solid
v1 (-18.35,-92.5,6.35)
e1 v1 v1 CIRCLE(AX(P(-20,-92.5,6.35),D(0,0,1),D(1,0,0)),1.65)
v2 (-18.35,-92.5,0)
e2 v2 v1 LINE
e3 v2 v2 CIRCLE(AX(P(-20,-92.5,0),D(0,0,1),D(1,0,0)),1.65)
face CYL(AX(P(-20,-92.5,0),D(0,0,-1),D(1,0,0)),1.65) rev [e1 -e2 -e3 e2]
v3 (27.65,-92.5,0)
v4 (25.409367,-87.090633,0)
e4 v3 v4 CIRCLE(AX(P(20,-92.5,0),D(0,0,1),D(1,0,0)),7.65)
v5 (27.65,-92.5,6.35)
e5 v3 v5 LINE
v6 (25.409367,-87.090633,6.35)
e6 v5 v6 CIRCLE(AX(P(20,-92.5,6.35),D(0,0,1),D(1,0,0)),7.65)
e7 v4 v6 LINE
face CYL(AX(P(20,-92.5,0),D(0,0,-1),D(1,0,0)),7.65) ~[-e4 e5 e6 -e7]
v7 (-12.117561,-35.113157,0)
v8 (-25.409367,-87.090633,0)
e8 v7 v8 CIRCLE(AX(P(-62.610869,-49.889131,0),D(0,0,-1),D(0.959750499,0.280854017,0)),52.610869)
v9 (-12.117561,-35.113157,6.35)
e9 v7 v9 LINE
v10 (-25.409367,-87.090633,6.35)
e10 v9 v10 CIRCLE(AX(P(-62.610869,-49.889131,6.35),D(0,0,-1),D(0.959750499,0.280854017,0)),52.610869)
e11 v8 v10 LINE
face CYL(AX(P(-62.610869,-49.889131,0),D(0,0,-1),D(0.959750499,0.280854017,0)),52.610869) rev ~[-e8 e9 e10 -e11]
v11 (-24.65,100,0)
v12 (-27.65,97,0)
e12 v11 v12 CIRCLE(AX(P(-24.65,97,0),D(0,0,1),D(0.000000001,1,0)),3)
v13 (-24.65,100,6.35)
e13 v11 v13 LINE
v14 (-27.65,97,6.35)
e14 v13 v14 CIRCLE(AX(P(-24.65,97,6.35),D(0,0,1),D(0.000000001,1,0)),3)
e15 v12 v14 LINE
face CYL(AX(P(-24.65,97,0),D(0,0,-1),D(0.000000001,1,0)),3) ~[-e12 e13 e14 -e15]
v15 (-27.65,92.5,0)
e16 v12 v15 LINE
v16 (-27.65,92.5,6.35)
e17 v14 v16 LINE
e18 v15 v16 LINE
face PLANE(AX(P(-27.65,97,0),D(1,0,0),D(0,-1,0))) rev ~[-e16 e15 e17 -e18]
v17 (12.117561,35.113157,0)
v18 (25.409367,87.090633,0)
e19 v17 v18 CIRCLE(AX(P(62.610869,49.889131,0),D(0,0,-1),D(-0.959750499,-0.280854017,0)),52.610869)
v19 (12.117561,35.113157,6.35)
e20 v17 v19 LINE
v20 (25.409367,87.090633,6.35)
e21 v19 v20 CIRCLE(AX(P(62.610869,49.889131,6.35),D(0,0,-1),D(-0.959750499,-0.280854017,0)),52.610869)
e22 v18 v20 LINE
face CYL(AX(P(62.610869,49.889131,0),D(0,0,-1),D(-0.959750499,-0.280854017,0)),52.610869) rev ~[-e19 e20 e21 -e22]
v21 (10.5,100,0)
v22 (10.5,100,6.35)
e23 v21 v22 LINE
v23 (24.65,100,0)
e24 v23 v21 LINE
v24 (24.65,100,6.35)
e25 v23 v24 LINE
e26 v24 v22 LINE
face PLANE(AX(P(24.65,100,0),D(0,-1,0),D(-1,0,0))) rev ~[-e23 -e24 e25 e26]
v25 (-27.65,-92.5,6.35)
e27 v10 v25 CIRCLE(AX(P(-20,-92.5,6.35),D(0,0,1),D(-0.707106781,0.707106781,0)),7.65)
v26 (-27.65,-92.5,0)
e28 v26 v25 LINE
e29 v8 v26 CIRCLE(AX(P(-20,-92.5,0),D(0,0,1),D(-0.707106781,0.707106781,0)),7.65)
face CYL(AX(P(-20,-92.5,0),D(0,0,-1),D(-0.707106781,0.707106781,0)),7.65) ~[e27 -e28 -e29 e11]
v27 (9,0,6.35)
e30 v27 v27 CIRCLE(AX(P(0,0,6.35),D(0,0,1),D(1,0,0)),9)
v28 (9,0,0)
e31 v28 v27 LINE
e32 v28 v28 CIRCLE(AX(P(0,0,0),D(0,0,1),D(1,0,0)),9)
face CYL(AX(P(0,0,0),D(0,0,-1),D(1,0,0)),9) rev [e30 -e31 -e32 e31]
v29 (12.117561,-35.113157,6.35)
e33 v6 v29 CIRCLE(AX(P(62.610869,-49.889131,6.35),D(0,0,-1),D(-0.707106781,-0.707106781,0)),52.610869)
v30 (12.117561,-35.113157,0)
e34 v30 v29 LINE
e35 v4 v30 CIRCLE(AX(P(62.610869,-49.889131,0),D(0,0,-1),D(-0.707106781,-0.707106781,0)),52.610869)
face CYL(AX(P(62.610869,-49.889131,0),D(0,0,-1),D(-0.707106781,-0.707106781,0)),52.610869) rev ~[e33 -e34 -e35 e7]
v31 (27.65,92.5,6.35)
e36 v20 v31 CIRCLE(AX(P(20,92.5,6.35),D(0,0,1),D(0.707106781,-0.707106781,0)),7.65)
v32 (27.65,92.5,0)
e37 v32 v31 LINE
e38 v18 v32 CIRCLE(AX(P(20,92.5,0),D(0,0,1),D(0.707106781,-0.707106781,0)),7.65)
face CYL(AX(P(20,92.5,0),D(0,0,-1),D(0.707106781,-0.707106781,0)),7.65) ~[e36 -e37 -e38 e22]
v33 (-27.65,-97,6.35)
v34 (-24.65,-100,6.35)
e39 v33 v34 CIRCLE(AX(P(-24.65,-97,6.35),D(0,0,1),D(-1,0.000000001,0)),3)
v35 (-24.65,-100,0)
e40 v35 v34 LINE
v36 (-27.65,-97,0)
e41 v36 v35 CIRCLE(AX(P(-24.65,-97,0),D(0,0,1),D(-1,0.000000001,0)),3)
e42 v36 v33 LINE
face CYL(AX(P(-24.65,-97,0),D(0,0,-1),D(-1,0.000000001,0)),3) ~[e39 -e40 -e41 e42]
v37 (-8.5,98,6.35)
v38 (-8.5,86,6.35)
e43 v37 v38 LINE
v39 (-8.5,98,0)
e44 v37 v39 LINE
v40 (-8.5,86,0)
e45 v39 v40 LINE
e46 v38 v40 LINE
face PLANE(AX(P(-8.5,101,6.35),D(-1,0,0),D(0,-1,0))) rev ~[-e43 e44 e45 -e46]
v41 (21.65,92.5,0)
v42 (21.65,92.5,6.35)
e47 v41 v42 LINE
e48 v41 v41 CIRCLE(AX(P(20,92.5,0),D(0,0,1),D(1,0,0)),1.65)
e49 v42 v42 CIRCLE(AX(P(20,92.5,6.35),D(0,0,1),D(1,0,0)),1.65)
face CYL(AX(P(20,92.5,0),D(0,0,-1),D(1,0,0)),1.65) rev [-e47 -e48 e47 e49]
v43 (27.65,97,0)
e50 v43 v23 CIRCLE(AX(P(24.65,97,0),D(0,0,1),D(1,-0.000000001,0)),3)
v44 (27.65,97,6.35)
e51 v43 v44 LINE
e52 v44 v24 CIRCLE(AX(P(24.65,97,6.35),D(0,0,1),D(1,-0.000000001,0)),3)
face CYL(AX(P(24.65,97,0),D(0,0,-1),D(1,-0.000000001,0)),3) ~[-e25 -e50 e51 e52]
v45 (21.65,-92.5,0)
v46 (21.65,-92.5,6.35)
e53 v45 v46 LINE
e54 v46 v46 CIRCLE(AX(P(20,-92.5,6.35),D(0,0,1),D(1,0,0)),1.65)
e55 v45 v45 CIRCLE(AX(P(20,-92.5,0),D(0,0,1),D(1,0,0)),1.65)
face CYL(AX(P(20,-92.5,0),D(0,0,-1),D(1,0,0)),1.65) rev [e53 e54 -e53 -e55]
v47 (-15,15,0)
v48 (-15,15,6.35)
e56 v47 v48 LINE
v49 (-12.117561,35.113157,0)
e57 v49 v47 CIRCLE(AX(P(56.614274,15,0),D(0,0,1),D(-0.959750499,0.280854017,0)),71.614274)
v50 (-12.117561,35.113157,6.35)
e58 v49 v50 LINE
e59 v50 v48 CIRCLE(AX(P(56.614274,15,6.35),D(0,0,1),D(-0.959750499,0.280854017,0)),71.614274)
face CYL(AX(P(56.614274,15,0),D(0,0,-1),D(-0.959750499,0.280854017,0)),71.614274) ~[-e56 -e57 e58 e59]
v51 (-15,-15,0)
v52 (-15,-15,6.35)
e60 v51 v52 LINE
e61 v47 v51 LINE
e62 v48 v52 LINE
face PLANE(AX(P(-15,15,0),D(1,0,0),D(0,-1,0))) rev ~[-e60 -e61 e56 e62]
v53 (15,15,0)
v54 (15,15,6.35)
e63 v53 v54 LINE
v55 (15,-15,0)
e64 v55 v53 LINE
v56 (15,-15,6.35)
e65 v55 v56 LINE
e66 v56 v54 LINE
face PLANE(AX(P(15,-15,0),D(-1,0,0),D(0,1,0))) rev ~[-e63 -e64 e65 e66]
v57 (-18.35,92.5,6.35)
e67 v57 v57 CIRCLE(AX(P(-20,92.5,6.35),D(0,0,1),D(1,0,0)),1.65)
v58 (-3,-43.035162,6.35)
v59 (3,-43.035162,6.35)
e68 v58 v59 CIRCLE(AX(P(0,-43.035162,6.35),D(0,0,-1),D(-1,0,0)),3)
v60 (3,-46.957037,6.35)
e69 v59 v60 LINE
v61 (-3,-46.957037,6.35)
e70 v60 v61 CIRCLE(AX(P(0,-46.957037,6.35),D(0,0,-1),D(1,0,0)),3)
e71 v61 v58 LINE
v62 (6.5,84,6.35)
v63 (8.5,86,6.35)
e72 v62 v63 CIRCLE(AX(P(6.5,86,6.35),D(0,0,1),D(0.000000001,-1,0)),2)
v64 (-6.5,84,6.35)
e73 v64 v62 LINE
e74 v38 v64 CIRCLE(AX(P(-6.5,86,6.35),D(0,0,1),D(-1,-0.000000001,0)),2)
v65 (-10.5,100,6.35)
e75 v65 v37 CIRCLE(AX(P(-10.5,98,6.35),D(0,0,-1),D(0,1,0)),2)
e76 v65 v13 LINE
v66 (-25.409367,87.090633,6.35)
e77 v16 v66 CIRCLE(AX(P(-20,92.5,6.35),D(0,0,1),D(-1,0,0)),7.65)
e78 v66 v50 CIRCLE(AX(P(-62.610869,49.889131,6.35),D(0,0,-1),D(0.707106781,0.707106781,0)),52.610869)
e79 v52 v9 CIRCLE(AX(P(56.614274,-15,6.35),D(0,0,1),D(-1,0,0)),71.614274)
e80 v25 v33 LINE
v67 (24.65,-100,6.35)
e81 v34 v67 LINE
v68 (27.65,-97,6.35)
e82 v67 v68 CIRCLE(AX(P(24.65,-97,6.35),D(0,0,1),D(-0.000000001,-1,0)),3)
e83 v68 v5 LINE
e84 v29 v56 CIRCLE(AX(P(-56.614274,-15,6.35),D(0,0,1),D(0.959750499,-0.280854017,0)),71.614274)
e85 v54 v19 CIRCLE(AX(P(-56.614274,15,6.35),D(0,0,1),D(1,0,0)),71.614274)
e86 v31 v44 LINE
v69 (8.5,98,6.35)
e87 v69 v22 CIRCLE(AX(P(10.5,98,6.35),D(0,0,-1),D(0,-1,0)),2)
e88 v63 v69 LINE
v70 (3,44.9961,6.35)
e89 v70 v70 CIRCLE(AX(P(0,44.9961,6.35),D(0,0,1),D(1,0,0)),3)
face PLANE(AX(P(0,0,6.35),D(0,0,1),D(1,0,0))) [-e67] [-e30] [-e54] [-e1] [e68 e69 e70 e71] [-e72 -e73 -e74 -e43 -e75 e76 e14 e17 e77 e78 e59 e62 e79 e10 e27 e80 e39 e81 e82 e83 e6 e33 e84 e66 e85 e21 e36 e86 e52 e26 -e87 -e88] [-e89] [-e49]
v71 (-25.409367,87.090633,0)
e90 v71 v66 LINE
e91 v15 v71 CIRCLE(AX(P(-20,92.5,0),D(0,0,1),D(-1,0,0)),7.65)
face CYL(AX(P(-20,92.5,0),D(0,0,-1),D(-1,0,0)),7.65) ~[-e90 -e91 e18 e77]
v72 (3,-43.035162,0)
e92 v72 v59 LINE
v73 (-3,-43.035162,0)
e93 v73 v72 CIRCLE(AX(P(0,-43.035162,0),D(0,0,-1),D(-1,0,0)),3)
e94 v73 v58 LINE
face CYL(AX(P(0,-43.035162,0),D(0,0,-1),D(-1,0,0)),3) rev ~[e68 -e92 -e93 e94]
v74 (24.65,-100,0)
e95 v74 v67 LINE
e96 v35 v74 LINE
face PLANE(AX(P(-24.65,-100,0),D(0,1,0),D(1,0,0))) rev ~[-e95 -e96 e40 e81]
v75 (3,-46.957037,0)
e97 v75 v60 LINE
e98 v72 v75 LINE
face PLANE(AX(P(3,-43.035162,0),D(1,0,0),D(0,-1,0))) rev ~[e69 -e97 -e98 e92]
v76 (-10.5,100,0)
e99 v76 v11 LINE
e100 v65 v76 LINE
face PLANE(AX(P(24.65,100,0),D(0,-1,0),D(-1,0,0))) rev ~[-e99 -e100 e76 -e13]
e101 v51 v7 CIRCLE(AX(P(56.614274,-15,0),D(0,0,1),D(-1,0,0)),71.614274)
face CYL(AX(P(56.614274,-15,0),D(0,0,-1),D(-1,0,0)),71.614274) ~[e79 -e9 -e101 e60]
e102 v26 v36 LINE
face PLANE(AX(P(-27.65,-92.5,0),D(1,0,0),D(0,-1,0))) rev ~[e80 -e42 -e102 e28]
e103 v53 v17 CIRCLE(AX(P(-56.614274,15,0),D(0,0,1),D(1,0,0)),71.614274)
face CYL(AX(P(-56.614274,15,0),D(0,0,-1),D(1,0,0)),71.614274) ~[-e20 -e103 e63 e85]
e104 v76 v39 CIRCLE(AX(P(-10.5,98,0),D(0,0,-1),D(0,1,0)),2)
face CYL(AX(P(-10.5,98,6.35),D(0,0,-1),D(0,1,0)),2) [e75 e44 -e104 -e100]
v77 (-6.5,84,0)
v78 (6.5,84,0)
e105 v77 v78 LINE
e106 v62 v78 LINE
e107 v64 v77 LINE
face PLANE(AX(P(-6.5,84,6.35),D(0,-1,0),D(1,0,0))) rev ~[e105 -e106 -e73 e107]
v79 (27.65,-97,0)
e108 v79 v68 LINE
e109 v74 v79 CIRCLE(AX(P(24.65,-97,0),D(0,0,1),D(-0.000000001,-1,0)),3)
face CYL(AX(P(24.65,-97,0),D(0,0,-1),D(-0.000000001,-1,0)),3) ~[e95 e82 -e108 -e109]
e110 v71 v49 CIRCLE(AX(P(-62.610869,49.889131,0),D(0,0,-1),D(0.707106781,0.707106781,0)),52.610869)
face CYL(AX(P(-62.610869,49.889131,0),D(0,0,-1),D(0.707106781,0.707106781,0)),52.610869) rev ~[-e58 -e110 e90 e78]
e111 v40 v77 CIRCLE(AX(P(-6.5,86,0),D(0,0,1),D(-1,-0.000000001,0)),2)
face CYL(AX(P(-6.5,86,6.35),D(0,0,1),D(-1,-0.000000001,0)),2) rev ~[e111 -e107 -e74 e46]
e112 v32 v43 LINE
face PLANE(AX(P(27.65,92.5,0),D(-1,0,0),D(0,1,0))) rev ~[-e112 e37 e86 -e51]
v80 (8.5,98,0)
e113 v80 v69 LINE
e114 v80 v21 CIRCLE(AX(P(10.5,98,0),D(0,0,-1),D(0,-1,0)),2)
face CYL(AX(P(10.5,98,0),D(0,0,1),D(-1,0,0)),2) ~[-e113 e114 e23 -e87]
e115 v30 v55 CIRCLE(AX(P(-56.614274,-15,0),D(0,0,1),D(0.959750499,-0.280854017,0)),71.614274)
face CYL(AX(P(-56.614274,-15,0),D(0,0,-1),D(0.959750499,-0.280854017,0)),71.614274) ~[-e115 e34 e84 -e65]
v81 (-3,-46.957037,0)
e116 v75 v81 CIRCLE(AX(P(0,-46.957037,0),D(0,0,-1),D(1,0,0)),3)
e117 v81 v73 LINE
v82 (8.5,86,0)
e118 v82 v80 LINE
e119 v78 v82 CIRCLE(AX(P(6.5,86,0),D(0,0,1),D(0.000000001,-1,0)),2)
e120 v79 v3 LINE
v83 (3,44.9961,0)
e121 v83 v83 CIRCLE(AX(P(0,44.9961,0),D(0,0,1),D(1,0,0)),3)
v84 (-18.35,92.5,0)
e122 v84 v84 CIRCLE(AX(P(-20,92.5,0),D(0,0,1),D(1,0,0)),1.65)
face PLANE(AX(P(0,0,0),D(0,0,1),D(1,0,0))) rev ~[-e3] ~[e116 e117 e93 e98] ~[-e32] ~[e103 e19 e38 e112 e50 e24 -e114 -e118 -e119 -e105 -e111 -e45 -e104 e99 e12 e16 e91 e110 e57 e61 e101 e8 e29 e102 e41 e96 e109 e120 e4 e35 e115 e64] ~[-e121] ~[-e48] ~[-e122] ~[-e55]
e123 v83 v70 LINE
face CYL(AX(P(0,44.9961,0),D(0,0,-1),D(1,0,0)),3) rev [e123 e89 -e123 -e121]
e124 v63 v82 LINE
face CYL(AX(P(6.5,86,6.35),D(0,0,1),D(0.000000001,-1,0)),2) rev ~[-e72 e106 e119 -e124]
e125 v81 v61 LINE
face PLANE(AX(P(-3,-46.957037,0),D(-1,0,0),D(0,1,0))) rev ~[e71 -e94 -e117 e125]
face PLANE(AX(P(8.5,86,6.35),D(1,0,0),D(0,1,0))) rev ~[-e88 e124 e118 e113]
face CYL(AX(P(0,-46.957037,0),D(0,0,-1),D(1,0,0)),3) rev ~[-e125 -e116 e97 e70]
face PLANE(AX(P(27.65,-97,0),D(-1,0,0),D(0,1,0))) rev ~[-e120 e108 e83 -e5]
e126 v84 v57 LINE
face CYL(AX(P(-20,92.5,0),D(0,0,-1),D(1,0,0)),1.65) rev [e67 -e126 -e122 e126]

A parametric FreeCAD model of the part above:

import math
import FreeCAD as App
import Part
import Sketcher
from FreeCAD import Vector
Q = App.Units.Quantity


def edges_at(feature, points):
    """Names of the edges that pass closest to the given points."""
    edges = feature.Shape.Edges
    near = lambda p: min(range(len(edges)), key=lambda i: edges[i].distToShape(Part.Vertex(*p))[0])
    return sorted({f"Edge{near(p) + 1}" for p in points})

doc = App.newDocument("Part")
params = doc.addObject("Spreadsheet::Sheet", "Params")
for row, (alias, value) in enumerate([
    ("sketch1_diameter", "18 mm"),
    ("sketch1_diameter2", "6 mm"),
    ("sketch1_diameter3", "3.3 mm"),
    ("sketch1_height", "30 mm"),
    ("sketch1_radius", "7.65 mm"),
    ("pad1_length", "6.35 mm"),
    ("sketch2_radius", "2 mm"),
    ("sketch2_width", "13 mm"),
    ("sketch2_height", "15 mm"),
    ("pocket1_length", "10 mm"),
    ("fillet_radius", "2 mm"),
], start=1):
    params.set(f"A{row}", alias)
    params.set(f"B{row}", "=" + value)
    params.setAlias(f"B{row}", alias)

body = doc.addObject("PartDesign::Body", "Body")

# Sketch on XY plane
sketch1 = body.newObject("Sketcher::SketchObject", "Sketch")
sketch1.AttachmentSupport = (doc.getObject("XY_Plane"), [""])
sketch1.MapMode = "FlatFace"
sketch1.addGeometry([
    Part.LineSegment(Vector(-15, 15, 0), Vector(-15, -15, 0)),  # 0
    Part.ArcOfCircle(Part.Circle(Vector(56.6, -15, 0), Vector(0, 0, 1), 71.6), math.radians(-180), math.radians(-163.69)),  # 1
    Part.ArcOfCircle(Part.Circle(Vector(-62.6, -49.9, 0), Vector(0, 0, 1), 52.6), math.radians(-45), math.radians(16)),  # 2
    Part.ArcOfCircle(Part.Circle(Vector(-20, -92.5, 0), Vector(0, 0, 1), 7.6), math.radians(135), math.radians(180)),  # 3
    Part.LineSegment(Vector(-27.6, -92.5, 0), Vector(-27.6, -97, 0)),  # 4
    Part.ArcOfCircle(Part.Circle(Vector(-24.7, -97, 0), Vector(0, 0, 1), 3), math.radians(180), math.radians(270)),  # 5
    Part.LineSegment(Vector(-24.6, -100, 0), Vector(24.6, -100, 0)),  # 6
    Part.ArcOfCircle(Part.Circle(Vector(24.7, -97, 0), Vector(0, 0, 1), 3), math.radians(-90), math.radians(0)),  # 7
    Part.LineSegment(Vector(27.6, -97, 0), Vector(27.6, -92.5, 0)),  # 8
    Part.ArcOfCircle(Part.Circle(Vector(20, -92.5, 0), Vector(0, 0, 1), 7.6), math.radians(0), math.radians(45)),  # 9
    Part.ArcOfCircle(Part.Circle(Vector(62.6, -49.9, 0), Vector(0, 0, 1), 52.6), math.radians(164), math.radians(225)),  # 10
    Part.ArcOfCircle(Part.Circle(Vector(-56.6, -15, 0), Vector(0, 0, 1), 71.6), math.radians(-16.31), math.radians(0)),  # 11
    Part.LineSegment(Vector(15, -15, 0), Vector(15, 15, 0)),  # 12
    Part.ArcOfCircle(Part.Circle(Vector(-56.6, 15, 0), Vector(0, 0, 1), 71.6), math.radians(0), math.radians(16.31)),  # 13
    Part.ArcOfCircle(Part.Circle(Vector(62.6, 49.9, 0), Vector(0, 0, 1), 52.6), math.radians(135), math.radians(196)),  # 14
    Part.ArcOfCircle(Part.Circle(Vector(20, 92.5, 0), Vector(0, 0, 1), 7.6), math.radians(-45), math.radians(0)),  # 15
    Part.LineSegment(Vector(27.6, 92.5, 0), Vector(27.6, 97, 0)),  # 16
    Part.ArcOfCircle(Part.Circle(Vector(24.7, 97, 0), Vector(0, 0, 1), 3), math.radians(0), math.radians(90)),  # 17
    Part.LineSegment(Vector(24.6, 100, 0), Vector(-24.6, 100, 0)),  # 18
    Part.ArcOfCircle(Part.Circle(Vector(-24.7, 97, 0), Vector(0, 0, 1), 3), math.radians(90), math.radians(180)),  # 19
    Part.LineSegment(Vector(-27.6, 97, 0), Vector(-27.6, 92.5, 0)),  # 20
    Part.ArcOfCircle(Part.Circle(Vector(-20, 92.5, 0), Vector(0, 0, 1), 7.6), math.radians(180), math.radians(225)),  # 21
    Part.ArcOfCircle(Part.Circle(Vector(-62.6, 49.9, 0), Vector(0, 0, 1), 52.6), math.radians(-16), math.radians(45)),  # 22
    Part.ArcOfCircle(Part.Circle(Vector(56.6, 15, 0), Vector(0, 0, 1), 71.6), math.radians(163.69), math.radians(180)),  # 23
    Part.Circle(Vector(-20, -92.5, 0), Vector(0, 0, 1), 1.6),  # 24
    Part.Circle(Vector(20, -92.5, 0), Vector(0, 0, 1), 1.6),  # 25
    Part.ArcOfCircle(Part.Circle(Vector(0, -43, 0), Vector(0, 0, 1), 3), math.radians(0), math.radians(180)),  # 26
    Part.LineSegment(Vector(3, -43, 0), Vector(3, -47, 0)),  # 27
    Part.ArcOfCircle(Part.Circle(Vector(0, -47, 0), Vector(0, 0, 1), 3), math.radians(180), math.radians(360)),  # 28
    Part.LineSegment(Vector(-3, -47, 0), Vector(-3, -43, 0)),  # 29
    Part.Circle(Vector(0, 0, 0), Vector(0, 0, 1), 9),  # 30
    Part.Circle(Vector(-20, 92.5, 0), Vector(0, 0, 1), 1.6),  # 31
    Part.Circle(Vector(0, 45, 0), Vector(0, 0, 1), 3),  # 32
    Part.Circle(Vector(20, 92.5, 0), Vector(0, 0, 1), 1.6),  # 33
], False)
sketch1.addConstraint([
    Sketcher.Constraint("Tangent", 0, 2, 1, 1),
    Sketcher.Constraint("Tangent", 1, 2, 2, 2),
    Sketcher.Constraint("Tangent", 2, 1, 3, 1),
    Sketcher.Constraint("Tangent", 3, 2, 4, 1),
    Sketcher.Constraint("Tangent", 4, 2, 5, 1),
    Sketcher.Constraint("Tangent", 5, 2, 6, 1),
    Sketcher.Constraint("Tangent", 6, 2, 7, 1),
    Sketcher.Constraint("Tangent", 7, 2, 8, 1),
    Sketcher.Constraint("Tangent", 8, 2, 9, 1),
    Sketcher.Constraint("Tangent", 9, 2, 10, 2),
    Sketcher.Constraint("Tangent", 10, 1, 11, 1),
    Sketcher.Constraint("Tangent", 11, 2, 12, 1),
    Sketcher.Constraint("Tangent", 12, 2, 13, 1),
    Sketcher.Constraint("Tangent", 13, 2, 14, 2),
    Sketcher.Constraint("Tangent", 14, 1, 15, 1),
    Sketcher.Constraint("Tangent", 15, 2, 16, 1),
    Sketcher.Constraint("Tangent", 16, 2, 17, 1),
    Sketcher.Constraint("Tangent", 17, 2, 18, 1),
    Sketcher.Constraint("Tangent", 18, 2, 19, 1),
    Sketcher.Constraint("Tangent", 19, 2, 20, 1),
    Sketcher.Constraint("Tangent", 20, 2, 21, 1),
    Sketcher.Constraint("Tangent", 21, 2, 22, 2),
    Sketcher.Constraint("Tangent", 22, 1, 23, 1),
    Sketcher.Constraint("Tangent", 23, 2, 0, 1),
    Sketcher.Constraint("Tangent", 26, 1, 27, 1),
    Sketcher.Constraint("Tangent", 27, 2, 28, 2),
    Sketcher.Constraint("Tangent", 28, 1, 29, 1),
    Sketcher.Constraint("Tangent", 29, 2, 26, 2),
    Sketcher.Constraint("Vertical", 0),
    Sketcher.Constraint("Vertical", 4),
    Sketcher.Constraint("Horizontal", 6),
    Sketcher.Constraint("Vertical", 8),
    Sketcher.Constraint("Vertical", 12),
    Sketcher.Constraint("Vertical", 16),
    Sketcher.Constraint("Horizontal", 18),
    Sketcher.Constraint("Vertical", 20),
    Sketcher.Constraint("Vertical", 27),
    Sketcher.Constraint("Vertical", 29),
    Sketcher.Constraint("Coincident", 30, 3, -1, 1),
    Sketcher.Constraint("Coincident", 24, 3, 3, 3),
    Sketcher.Constraint("Coincident", 25, 3, 9, 3),
    Sketcher.Constraint("Coincident", 31, 3, 21, 3),
    Sketcher.Constraint("Coincident", 33, 3, 15, 3),
    Sketcher.Constraint("Equal", 5, 7),
    Sketcher.Constraint("Equal", 3, 9),
    Sketcher.Constraint("Equal", 2, 10),
    Sketcher.Constraint("Equal", 1, 11),
    Sketcher.Constraint("Equal", 11, 13),
    Sketcher.Constraint("Equal", 10, 14),
    Sketcher.Constraint("Equal", 9, 15),
    Sketcher.Constraint("Equal", 7, 17),
    Sketcher.Constraint("Equal", 17, 19),
    Sketcher.Constraint("Equal", 15, 21),
    Sketcher.Constraint("Equal", 14, 22),
    Sketcher.Constraint("Equal", 13, 23),
    Sketcher.Constraint("Equal", 24, 25),
    Sketcher.Constraint("Equal", 19, 26),
    Sketcher.Constraint("Equal", 25, 31),
    Sketcher.Constraint("Equal", 28, 32),
    Sketcher.Constraint("Equal", 31, 33),
    Sketcher.Constraint("Symmetric", 1, 3, 13, 3, -1, 1),
    Sketcher.Constraint("Symmetric", 3, 3, 15, 3, -1, 1),
    Sketcher.Constraint("Symmetric", 7, 3, 19, 3, -1, 1),
    Sketcher.Constraint("Symmetric", 10, 3, 22, 3, -1, 1),
    Sketcher.Constraint("Symmetric", 3, 3, 9, 3, -2),
    Sketcher.Constraint("PointOnObject", 26, 3, -2),
    Sketcher.Constraint("PointOnObject", 32, 3, -2),
    Sketcher.Constraint("Horizontal", 2, 3, 10, 3),
    Sketcher.Constraint("Diameter", 30, Q("18 mm")),
    Sketcher.Constraint("Diameter", 32, Q("6 mm")),
    Sketcher.Constraint("Diameter", 24, Q("3.3 mm")),
    Sketcher.Constraint("DistanceY", 0, 2, 0, 1, Q("30 mm")),
    Sketcher.Constraint("Radius", 3, Q("7.65 mm")),
    Sketcher.Constraint("DistanceX", 6, 1, 6, 2, Q("49.3 mm")),
    Sketcher.Constraint("DistanceY", 4, 2, 4, 1, Q("4.5 mm")),
    Sketcher.Constraint("DistanceY", 5, 3, -1, 1, Q("97 mm")),
    Sketcher.Constraint("DistanceX", 0, 2, -1, 1, Q("15 mm")),
    Sketcher.Constraint("Radius", 2, Q("52.610869 mm")),
    Sketcher.Constraint("Radius", 1, Q("71.614274 mm")),
    Sketcher.Constraint("DistanceY", -1, 1, 32, 3, Q("44.9961 mm")),
    Sketcher.Constraint("DistanceY", 27, 2, 27, 1, Q("3.921875 mm")),
    Sketcher.Constraint("DistanceY", 28, 3, 1, 2, Q("11.843881 mm")),
])
sketch1.setExpression("Constraints[68]", "Params.sketch1_diameter")
sketch1.setExpression("Constraints[69]", "Params.sketch1_diameter2")
sketch1.setExpression("Constraints[70]", "Params.sketch1_diameter3")
sketch1.setExpression("Constraints[71]", "Params.sketch1_height")
sketch1.setExpression("Constraints[72]", "Params.sketch1_radius")
pad1 = body.newObject("PartDesign::Pad", "Pad")
pad1.Profile = sketch1
pad1.setExpression("Length", "Params.pad1_length")

# Sketch on XY plane
sketch2 = body.newObject("Sketcher::SketchObject", "Sketch001")
sketch2.AttachmentSupport = (doc.getObject("XY_Plane"), [""])
sketch2.MapMode = "FlatFace"
sketch2.AttachmentOffset = App.Placement(Vector(0, 0, 6.35), App.Rotation())
sketch2.addGeometry([
    Part.LineSegment(Vector(-8.5, 101, 0), Vector(-8.5, 86, 0)),  # 0
    Part.ArcOfCircle(Part.Circle(Vector(-6.5, 86, 0), Vector(0, 0, 1), 2), math.radians(-180), math.radians(-90)),  # 1
    Part.LineSegment(Vector(-6.5, 84, 0), Vector(6.5, 84, 0)),  # 2
    Part.ArcOfCircle(Part.Circle(Vector(6.5, 86, 0), Vector(0, 0, 1), 2), math.radians(-90), math.radians(0)),  # 3
    Part.LineSegment(Vector(8.5, 86, 0), Vector(8.5, 101, 0)),  # 4
    Part.LineSegment(Vector(8.5, 101, 0), Vector(-8.5, 101, 0)),  # 5
], False)
sketch2.addConstraint([
    Sketcher.Constraint("Tangent", 0, 2, 1, 1),
    Sketcher.Constraint("Tangent", 1, 2, 2, 1),
    Sketcher.Constraint("Tangent", 2, 2, 3, 1),
    Sketcher.Constraint("Tangent", 3, 2, 4, 1),
    Sketcher.Constraint("Coincident", 4, 2, 5, 1),
    Sketcher.Constraint("Coincident", 5, 2, 0, 1),
    Sketcher.Constraint("Vertical", 0),
    Sketcher.Constraint("Horizontal", 2),
    Sketcher.Constraint("Vertical", 4),
    Sketcher.Constraint("Horizontal", 5),
    Sketcher.Constraint("Equal", 1, 3),
    Sketcher.Constraint("Radius", 1, Q("2 mm")),
    Sketcher.Constraint("DistanceX", 2, 1, 2, 2, Q("13 mm")),
    Sketcher.Constraint("DistanceY", 0, 2, 0, 1, Q("15 mm")),
    Sketcher.Constraint("DistanceY", -1, 1, 1, 3, Q("86 mm")),
    Sketcher.Constraint("DistanceX", 1, 3, -1, 1, Q("6.5 mm")),
])
sketch2.setExpression("Constraints[11]", "Params.sketch2_radius")
sketch2.setExpression("Constraints[12]", "Params.sketch2_width")
sketch2.setExpression("Constraints[13]", "Params.sketch2_height")
pocket1 = body.newObject("PartDesign::Pocket", "Pocket")
pocket1.Profile = sketch2
pocket1.setExpression("Length", "Params.pocket1_length")
doc.recompute()

fillet = body.newObject("PartDesign::Fillet", "Fillet")
fillet.Base = (pocket1, edges_at(pocket1, [(-8.5, 100, 3.175), (8.5, 100, 3.175)]))
fillet.setExpression("Radius", "Params.fillet_radius")

doc.recompute()
